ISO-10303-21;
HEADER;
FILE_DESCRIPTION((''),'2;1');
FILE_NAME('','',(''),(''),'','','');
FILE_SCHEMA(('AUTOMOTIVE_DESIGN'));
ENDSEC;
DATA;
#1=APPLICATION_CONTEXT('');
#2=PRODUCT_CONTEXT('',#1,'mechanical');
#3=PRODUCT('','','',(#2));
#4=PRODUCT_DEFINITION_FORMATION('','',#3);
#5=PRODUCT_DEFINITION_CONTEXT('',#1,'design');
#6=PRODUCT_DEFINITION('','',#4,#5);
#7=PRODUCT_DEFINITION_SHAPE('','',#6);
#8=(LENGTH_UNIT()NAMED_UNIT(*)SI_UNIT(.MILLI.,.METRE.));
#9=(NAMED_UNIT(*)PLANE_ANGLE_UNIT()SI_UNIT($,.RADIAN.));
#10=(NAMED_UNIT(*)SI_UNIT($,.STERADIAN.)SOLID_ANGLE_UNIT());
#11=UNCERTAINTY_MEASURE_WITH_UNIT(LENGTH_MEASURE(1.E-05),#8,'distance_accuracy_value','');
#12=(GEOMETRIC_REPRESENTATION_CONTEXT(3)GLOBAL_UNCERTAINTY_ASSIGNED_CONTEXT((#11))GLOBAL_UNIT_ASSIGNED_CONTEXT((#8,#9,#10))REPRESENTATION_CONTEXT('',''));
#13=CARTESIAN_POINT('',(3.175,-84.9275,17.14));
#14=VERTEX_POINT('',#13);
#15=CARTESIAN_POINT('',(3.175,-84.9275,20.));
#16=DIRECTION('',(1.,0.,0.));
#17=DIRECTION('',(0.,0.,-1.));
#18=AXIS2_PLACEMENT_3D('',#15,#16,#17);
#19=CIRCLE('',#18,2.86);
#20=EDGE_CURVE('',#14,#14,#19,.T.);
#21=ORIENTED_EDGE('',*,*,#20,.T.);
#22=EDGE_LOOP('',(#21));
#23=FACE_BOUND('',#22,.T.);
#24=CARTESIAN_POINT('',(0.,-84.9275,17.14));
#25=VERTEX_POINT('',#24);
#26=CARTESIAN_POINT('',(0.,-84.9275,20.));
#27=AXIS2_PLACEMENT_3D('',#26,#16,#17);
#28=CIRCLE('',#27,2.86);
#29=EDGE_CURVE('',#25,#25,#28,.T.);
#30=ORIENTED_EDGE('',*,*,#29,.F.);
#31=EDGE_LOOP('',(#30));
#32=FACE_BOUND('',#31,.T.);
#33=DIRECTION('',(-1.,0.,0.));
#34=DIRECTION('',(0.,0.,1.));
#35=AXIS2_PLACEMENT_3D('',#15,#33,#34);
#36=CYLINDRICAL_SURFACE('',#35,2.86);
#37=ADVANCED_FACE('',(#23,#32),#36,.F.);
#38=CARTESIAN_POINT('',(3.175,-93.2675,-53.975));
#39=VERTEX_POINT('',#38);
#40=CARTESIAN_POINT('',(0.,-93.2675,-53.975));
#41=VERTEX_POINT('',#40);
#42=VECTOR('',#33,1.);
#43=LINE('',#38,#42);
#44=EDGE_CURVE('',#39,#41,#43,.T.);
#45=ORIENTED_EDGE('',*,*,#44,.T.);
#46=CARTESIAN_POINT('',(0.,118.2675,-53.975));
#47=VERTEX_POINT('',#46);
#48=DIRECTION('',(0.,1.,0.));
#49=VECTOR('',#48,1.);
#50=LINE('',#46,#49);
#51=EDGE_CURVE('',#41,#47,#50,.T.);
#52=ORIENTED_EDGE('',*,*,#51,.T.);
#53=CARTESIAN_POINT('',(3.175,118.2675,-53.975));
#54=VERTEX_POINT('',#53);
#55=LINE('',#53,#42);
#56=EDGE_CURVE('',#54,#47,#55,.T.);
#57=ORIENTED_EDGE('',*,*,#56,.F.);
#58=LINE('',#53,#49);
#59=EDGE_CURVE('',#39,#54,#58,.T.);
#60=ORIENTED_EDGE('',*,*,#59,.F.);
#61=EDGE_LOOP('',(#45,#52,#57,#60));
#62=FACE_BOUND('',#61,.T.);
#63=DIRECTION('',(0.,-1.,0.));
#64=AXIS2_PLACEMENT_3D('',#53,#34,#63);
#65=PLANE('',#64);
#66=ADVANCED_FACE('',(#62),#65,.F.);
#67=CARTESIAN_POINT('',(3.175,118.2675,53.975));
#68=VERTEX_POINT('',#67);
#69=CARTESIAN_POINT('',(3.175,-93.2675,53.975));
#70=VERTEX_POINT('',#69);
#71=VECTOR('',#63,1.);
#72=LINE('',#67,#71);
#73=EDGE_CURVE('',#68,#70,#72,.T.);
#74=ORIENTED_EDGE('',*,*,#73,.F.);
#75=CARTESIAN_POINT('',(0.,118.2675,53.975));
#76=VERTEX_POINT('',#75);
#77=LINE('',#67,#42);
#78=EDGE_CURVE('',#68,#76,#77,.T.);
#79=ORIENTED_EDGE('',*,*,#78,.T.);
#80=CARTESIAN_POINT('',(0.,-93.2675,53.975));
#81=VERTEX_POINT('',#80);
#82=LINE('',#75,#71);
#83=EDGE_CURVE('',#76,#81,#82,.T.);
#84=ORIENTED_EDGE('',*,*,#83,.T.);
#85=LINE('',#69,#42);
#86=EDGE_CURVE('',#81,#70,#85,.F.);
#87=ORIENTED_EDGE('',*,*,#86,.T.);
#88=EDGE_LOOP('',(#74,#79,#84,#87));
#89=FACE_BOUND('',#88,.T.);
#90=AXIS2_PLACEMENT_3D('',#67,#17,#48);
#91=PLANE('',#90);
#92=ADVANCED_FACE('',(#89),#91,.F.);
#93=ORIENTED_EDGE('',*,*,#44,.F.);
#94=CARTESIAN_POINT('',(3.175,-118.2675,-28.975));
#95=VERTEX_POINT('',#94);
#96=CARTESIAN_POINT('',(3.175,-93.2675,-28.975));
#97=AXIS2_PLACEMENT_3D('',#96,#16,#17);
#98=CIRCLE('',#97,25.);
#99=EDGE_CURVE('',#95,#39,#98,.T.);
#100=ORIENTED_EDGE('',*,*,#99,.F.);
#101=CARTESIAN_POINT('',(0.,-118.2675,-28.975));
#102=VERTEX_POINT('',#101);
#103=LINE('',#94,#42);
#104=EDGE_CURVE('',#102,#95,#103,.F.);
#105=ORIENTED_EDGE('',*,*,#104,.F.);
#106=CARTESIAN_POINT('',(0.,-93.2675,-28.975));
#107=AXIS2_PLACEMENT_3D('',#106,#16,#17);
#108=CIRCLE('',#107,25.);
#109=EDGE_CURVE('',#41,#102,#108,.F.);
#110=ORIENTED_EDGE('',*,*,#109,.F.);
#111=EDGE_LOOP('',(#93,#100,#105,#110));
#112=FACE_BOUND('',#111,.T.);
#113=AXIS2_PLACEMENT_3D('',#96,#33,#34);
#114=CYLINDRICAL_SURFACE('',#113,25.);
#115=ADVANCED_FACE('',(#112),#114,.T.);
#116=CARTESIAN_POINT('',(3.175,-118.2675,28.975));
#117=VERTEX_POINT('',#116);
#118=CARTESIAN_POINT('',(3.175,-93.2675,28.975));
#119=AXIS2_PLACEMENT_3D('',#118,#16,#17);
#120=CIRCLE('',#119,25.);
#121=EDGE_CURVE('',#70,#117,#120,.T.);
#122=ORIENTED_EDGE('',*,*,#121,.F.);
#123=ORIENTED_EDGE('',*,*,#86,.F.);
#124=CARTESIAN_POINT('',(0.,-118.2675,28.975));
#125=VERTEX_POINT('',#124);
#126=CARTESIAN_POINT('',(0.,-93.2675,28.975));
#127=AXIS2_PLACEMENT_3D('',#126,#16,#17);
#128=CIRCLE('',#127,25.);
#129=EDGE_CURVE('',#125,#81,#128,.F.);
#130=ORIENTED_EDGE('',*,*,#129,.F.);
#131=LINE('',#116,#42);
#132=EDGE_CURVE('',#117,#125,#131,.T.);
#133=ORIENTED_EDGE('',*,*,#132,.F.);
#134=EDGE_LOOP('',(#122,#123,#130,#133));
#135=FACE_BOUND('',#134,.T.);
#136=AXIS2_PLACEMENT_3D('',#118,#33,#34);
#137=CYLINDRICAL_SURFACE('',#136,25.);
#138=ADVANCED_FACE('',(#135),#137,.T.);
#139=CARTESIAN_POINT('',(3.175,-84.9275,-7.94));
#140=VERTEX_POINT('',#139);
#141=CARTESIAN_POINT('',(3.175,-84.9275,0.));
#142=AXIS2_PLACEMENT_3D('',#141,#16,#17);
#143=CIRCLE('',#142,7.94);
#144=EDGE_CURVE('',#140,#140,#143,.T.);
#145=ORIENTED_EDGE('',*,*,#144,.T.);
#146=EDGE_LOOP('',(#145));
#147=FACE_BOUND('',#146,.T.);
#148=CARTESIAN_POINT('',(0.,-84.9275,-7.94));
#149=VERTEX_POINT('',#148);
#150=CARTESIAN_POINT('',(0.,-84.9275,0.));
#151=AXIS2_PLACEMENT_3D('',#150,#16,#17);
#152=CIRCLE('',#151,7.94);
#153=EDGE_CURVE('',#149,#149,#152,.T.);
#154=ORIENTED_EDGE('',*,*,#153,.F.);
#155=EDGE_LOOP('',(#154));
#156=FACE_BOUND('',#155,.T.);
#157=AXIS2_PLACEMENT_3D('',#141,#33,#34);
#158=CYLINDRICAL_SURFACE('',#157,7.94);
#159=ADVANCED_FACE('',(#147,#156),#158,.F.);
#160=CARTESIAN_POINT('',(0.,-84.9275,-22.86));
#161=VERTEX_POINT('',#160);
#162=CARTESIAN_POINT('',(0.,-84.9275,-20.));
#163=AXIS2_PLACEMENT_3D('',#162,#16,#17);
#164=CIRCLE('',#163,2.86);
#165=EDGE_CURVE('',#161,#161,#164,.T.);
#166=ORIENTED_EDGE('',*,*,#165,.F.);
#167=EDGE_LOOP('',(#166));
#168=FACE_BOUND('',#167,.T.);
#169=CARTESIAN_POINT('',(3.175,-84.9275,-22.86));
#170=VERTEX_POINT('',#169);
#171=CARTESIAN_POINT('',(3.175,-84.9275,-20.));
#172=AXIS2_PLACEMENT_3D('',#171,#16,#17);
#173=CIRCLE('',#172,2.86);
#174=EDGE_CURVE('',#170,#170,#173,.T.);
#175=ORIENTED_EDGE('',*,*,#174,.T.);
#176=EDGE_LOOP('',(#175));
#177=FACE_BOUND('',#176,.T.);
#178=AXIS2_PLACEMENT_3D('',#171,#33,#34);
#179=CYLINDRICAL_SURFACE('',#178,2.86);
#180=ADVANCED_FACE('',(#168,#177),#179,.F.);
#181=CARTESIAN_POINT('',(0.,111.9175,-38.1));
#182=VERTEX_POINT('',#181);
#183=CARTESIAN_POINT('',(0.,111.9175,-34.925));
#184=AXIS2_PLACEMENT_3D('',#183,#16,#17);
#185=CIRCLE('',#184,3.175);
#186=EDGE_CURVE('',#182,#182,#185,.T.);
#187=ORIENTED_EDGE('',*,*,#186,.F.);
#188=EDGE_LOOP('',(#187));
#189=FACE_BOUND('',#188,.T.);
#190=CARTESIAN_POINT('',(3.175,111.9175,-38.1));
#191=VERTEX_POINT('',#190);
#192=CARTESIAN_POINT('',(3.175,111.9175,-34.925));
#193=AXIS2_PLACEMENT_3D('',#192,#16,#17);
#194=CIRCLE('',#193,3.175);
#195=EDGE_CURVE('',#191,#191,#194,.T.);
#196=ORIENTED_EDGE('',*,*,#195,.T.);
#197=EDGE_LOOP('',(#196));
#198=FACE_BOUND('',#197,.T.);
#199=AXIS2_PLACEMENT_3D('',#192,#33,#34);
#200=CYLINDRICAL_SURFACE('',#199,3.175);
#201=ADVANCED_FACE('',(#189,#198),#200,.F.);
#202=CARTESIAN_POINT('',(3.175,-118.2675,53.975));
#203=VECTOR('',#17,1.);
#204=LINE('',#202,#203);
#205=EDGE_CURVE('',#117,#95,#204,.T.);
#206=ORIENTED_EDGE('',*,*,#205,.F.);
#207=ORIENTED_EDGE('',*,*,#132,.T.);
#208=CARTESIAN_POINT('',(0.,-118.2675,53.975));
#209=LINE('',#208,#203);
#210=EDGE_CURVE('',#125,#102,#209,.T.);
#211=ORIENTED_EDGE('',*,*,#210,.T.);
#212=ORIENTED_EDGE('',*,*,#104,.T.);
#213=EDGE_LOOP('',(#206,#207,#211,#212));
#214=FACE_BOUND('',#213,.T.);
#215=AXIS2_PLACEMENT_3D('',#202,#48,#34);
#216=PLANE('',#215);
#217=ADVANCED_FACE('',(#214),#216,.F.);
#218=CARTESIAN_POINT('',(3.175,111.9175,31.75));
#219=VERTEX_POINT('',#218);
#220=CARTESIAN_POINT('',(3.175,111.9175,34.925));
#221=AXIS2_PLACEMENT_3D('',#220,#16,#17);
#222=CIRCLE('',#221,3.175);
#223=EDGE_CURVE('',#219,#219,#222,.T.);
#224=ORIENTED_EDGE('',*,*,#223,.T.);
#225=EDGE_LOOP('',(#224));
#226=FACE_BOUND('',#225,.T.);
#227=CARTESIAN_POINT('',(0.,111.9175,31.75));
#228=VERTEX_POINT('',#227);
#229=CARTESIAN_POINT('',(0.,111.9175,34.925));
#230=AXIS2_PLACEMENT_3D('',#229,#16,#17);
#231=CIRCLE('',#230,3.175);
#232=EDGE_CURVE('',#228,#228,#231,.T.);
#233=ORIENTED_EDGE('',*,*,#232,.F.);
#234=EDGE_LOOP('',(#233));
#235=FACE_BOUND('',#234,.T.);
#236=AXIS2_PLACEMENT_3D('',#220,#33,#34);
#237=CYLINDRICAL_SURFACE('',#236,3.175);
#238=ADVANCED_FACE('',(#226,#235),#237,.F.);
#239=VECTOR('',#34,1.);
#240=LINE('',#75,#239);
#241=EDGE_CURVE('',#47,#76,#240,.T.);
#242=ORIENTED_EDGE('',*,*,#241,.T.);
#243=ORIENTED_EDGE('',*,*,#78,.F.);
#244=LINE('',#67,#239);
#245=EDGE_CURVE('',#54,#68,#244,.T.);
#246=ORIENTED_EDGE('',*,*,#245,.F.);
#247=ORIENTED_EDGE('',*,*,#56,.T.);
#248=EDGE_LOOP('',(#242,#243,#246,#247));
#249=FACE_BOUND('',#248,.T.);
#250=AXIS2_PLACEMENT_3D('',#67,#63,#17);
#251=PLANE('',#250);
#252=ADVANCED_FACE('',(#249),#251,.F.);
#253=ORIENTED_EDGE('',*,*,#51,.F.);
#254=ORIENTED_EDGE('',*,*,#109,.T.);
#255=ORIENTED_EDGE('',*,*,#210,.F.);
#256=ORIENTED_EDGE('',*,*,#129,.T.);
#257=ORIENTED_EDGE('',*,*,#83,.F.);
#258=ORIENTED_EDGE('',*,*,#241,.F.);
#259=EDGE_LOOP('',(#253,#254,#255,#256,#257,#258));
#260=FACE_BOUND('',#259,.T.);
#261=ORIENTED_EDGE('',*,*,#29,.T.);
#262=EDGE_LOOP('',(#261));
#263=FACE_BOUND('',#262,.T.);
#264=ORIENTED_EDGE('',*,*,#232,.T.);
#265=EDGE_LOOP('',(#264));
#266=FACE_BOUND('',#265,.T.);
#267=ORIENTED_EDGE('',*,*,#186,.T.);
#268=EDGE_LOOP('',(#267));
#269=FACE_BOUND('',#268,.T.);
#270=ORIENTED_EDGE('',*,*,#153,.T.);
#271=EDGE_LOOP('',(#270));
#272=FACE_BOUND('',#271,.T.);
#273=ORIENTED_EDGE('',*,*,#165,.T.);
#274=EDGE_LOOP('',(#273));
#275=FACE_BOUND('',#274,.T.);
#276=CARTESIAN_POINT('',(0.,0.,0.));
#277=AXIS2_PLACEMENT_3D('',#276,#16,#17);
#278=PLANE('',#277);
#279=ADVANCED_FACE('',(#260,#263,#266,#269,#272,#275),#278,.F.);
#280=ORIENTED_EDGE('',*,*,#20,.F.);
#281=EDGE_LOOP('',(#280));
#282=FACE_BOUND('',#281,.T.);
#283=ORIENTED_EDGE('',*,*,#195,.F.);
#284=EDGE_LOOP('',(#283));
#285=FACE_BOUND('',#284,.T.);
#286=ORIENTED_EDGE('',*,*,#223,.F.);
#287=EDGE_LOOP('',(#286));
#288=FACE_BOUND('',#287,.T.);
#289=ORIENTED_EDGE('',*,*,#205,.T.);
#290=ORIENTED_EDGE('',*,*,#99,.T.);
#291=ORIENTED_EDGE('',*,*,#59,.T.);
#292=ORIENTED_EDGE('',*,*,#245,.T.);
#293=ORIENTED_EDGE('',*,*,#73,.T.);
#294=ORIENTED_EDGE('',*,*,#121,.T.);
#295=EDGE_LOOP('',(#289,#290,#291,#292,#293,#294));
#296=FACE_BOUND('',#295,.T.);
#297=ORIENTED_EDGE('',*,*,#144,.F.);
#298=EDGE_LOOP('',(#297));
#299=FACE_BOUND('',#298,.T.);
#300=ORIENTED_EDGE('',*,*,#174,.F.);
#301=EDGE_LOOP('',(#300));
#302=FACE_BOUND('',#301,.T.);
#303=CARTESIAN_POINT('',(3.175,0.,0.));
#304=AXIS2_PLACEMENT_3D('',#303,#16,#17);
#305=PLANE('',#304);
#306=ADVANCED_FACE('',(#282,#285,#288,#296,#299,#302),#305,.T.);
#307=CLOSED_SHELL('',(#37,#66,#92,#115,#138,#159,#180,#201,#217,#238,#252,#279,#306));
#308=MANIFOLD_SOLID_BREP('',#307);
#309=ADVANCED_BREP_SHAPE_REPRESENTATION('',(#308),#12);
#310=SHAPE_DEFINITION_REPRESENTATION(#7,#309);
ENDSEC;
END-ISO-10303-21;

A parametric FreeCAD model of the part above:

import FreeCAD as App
import Part
import Sketcher
Q = App.Units.Quantity


def edges_at(feature, points):
    """Names of the edges that pass closest to the given points."""
    edges = feature.Shape.Edges
    near = lambda p: min(range(len(edges)), key=lambda i: edges[i].distToShape(Part.Vertex(*p))[0])
    return sorted({f"Edge{near(p) + 1}" for p in points})


def add_polygon(sketch, points):
    """Adds a closed chain of lines whose ends are joined by coincident constraints."""
    first, n = sketch.GeometryCount, len(points)
    for a, b in zip(points, points[1:] + points[:1]):
        sketch.addGeometry(Part.LineSegment(App.Vector(*a, 0), App.Vector(*b, 0)), False)
    for i in range(n):
        sketch.addConstraint(Sketcher.Constraint("Coincident", first + i, 2, first + (i + 1) % n, 1))

doc = App.newDocument("Part")
body = doc.addObject("PartDesign::Body", "Body")

# Sketch on YZ plane
sketch1 = doc.addObject("Sketcher::SketchObject", "Sketch")
body.addObject(sketch1)
sketch1.AttachmentSupport = (doc.YZ_Plane, [""])
sketch1.MapMode = "FlatFace"
add_polygon(sketch1, [(118.3, 54), (-118.3, 54), (-118.3, -54), (118.3, -54)])  # lines 0-3
sketch1.addGeometry(Part.Circle(App.Vector(-84.9, 20, 0), App.Vector(0, 0, 1), 2.9), False)  # 4
sketch1.addGeometry(Part.Circle(App.Vector(-84.9, 0, 0), App.Vector(0, 0, 1), 7.9), False)  # 5
sketch1.addGeometry(Part.Circle(App.Vector(-84.9, -20, 0), App.Vector(0, 0, 1), 2.9), False)  # 6
sketch1.addGeometry(Part.Circle(App.Vector(111.9, 34.9, 0), App.Vector(0, 0, 1), 3.2), False)  # 7
sketch1.addGeometry(Part.Circle(App.Vector(111.9, -34.9, 0), App.Vector(0, 0, 1), 3.2), False)  # 8
sketch1.addConstraint(Sketcher.Constraint("Horizontal", 0))
sketch1.addConstraint(Sketcher.Constraint("Vertical", 1))
sketch1.addConstraint(Sketcher.Constraint("Horizontal", 2))
sketch1.addConstraint(Sketcher.Constraint("Vertical", 3))
sketch1.addConstraint(Sketcher.Constraint("Equal", 4, 6))
sketch1.addConstraint(Sketcher.Constraint("Equal", 7, 8))
sketch1.addConstraint(Sketcher.Constraint("Symmetric", 0, 2, 2, 2, -1, 1))
sketch1.addConstraint(Sketcher.Constraint("Symmetric", 4, 3, 6, 3, -1))
sketch1.addConstraint(Sketcher.Constraint("Symmetric", 7, 3, 8, 3, -1))
sketch1.addConstraint(Sketcher.Constraint("PointOnObject", 5, 3, -1))
sketch1.addConstraint(Sketcher.Constraint("Vertical", 4, 3, 5, 3))
sketch1.addConstraint(Sketcher.Constraint("Diameter", 7, Q("0.25 in")))
sketch1.addConstraint(Sketcher.Constraint("DistanceY", 1, 2, 1, 1, Q("4.25 in")))
sketch1.addConstraint(Sketcher.Constraint("DistanceY", 8, 3, 0, 2, Q("3.5 in")))
sketch1.addConstraint(Sketcher.Constraint("Diameter", 4, Q("5.72 mm")))
sketch1.addConstraint(Sketcher.Constraint("Diameter", 5, Q("15.88 mm")))
sketch1.addConstraint(Sketcher.Constraint("DistanceX", 8, 3, 2, 2, Q("0.25 in")))
sketch1.addConstraint(Sketcher.Constraint("DistanceX", 0, 2, 0, 1, Q("236.535 mm")))
sketch1.addConstraint(Sketcher.Constraint("DistanceX", 4, 3, -1, 1, Q("84.9275 mm")))
sketch1.addConstraint(Sketcher.Constraint("DistanceY", -1, 1, 4, 3, Q("20 mm")))
pad1 = doc.addObject("PartDesign::Pad", "Pad")
body.addObject(pad1)
pad1.Profile = sketch1
pad1.Length = Q("0.125 in")
doc.recompute()

fillet = doc.addObject("PartDesign::Fillet", "Fillet")
body.addObject(fillet)
fillet.Base = (pad1, edges_at(pad1, [(1.587, -118.267, -53.975), (1.587, -118.267, 53.975)]))
fillet.Radius = 25

doc.recompute()
